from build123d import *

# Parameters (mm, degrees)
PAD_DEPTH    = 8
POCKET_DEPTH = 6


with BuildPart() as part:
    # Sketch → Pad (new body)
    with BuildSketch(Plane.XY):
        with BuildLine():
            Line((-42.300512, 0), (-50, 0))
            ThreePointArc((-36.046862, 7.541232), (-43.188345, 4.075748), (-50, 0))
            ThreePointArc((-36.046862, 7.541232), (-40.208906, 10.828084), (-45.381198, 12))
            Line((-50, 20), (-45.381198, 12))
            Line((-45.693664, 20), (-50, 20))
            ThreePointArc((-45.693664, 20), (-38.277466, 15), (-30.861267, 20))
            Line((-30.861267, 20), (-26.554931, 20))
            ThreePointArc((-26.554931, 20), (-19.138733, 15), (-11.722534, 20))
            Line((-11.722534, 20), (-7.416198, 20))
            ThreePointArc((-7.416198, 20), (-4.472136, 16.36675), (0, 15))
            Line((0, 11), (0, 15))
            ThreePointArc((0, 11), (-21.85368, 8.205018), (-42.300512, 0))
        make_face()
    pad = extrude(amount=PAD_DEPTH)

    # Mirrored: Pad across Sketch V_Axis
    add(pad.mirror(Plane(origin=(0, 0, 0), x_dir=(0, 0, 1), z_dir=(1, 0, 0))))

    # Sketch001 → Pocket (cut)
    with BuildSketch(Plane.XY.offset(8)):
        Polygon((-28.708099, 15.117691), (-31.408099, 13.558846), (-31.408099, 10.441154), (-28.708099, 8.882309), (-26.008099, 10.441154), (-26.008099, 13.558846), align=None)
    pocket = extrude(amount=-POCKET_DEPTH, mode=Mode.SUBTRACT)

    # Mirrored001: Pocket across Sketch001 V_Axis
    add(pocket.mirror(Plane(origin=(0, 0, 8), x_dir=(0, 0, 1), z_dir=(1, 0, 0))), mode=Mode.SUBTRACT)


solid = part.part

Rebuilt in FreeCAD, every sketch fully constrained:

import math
import FreeCAD as App
import Part
import Sketcher
Q = App.Units.Quantity


def add_polygon(sketch, points):
    """Adds a closed chain of lines whose ends are joined by coincident constraints."""
    first, n = sketch.GeometryCount, len(points)
    for a, b in zip(points, points[1:] + points[:1]):
        sketch.addGeometry(Part.LineSegment(App.Vector(*a, 0), App.Vector(*b, 0)), False)
    for i in range(n):
        sketch.addConstraint(Sketcher.Constraint("Coincident", first + i, 2, first + (i + 1) % n, 1))

doc = App.newDocument("Part")
body = doc.addObject("PartDesign::Body", "Body")

sketch1 = body.newObject("Sketcher::SketchObject", "Sketch")
sketch1.AttachmentSupport = (doc.getObject("XY_Plane"), [""])
sketch1.MapMode = "FlatFace"
sketch1.addGeometry([
    Part.LineSegment(App.Vector(-50, 0, 0), App.Vector(-42.3, 0, 0)),
    Part.ArcOfCircle(Part.Circle(App.Vector(0, -75.8, 0), App.Vector(0, 0, 1), 86.8), math.radians(90), math.radians(119)),
    Part.LineSegment(App.Vector(0, 11, 0), App.Vector(0, 15, 0)),
    Part.ArcOfCircle(Part.Circle(App.Vector(0, 23, 0), App.Vector(0, 0, 1), 8), math.radians(-158), math.radians(-90)),
    Part.LineSegment(App.Vector(-7.4, 20, 0), App.Vector(-11.7, 20, 0)),
    Part.ArcOfCircle(Part.Circle(App.Vector(-19.1, 23, 0), App.Vector(0, 0, 1), 8), math.radians(-158), math.radians(-22)),
    Part.LineSegment(App.Vector(-26.6, 20, 0), App.Vector(-30.9, 20, 0)),
    Part.ArcOfCircle(Part.Circle(App.Vector(-38.3, 23, 0), App.Vector(0, 0, 1), 8), math.radians(-158), math.radians(-22)),
    Part.LineSegment(App.Vector(-45.7, 20, 0), App.Vector(-50, 20, 0)),
    Part.LineSegment(App.Vector(-50, 20, 0), App.Vector(-45.4, 12, 0)),
    Part.ArcOfCircle(Part.Circle(App.Vector(-45.4, 0, 0), App.Vector(0, 0, 1), 12), math.radians(39), math.radians(90)),
    Part.ArcOfCircle(Part.Circle(App.Vector(0, -75.8, 0), App.Vector(0, 0, 1), 90.8), math.radians(113.38), math.radians(123.4)),
], False)
sketch1.addConstraint([
    Sketcher.Constraint("Coincident", 0, 2, 1, 2),
    Sketcher.Constraint("Coincident", 1, 1, 2, 1),
    Sketcher.Constraint("Coincident", 2, 2, 3, 2),
    Sketcher.Constraint("Coincident", 3, 1, 4, 1),
    Sketcher.Constraint("Coincident", 4, 2, 5, 2),
    Sketcher.Constraint("Coincident", 5, 1, 6, 1),
    Sketcher.Constraint("Coincident", 6, 2, 7, 2),
    Sketcher.Constraint("Coincident", 7, 1, 8, 1),
    Sketcher.Constraint("Coincident", 8, 2, 9, 1),
    Sketcher.Constraint("Coincident", 9, 2, 10, 2),
    Sketcher.Constraint("Coincident", 10, 1, 11, 1),
    Sketcher.Constraint("Coincident", 11, 2, 0, 1),
    Sketcher.Constraint("Horizontal", 0),
    Sketcher.Constraint("Vertical", 2),
    Sketcher.Constraint("Horizontal", 4),
    Sketcher.Constraint("Horizontal", 6),
    Sketcher.Constraint("Horizontal", 8),
    Sketcher.Constraint("Equal", 5, 7),
    Sketcher.Constraint("PointOnObject", 3, 3, -2),
    Sketcher.Constraint("PointOnObject", 10, 3, -1),
    Sketcher.Constraint("PointOnObject", 11, 3, -2),
    Sketcher.Constraint("PointOnObject", 0, 2, -1),
    Sketcher.Constraint("PointOnObject", 1, 1, -2),
    Sketcher.Constraint("Horizontal", 5, 3, 7, 3),
    Sketcher.Constraint("Horizontal", 4, 2, 5, 1),
    Sketcher.Constraint("Horizontal", 6, 2, 7, 1),
    Sketcher.Constraint("Vertical", 1, 3, 3, 3),
    Sketcher.Constraint("Vertical", 10, 3, 9, 2),
    Sketcher.Constraint("Vertical", 8, 2, 11, 2),
    Sketcher.Constraint("Equal", 4, 6),
    Sketcher.Constraint("Equal", 6, 8),
    Sketcher.Constraint("Radius", 5, Q("8 mm")),
    Sketcher.Constraint("Radius", 10, Q("11.999999 mm")),
    Sketcher.Constraint("DistanceY", 2, 1, 2, 2, Q("4 mm")),
    Sketcher.Constraint("Angle", 9, Q("-60.000001 deg")),
    Sketcher.Constraint("DistanceY", -1, 1, 5, 3, Q("23 mm")),
    Sketcher.Constraint("DistanceY", -1, 1, 1, 1, Q("11 mm")),
    Sketcher.Constraint("DistanceY", -1, 1, 3, 1, Q("20 mm")),
    Sketcher.Constraint("DistanceX", 8, 2, -1, 1, Q("50 mm")),
    Sketcher.Constraint("Radius", 1, Q("86.833324 mm")),
    Sketcher.Constraint("Radius", 3, Q("7.999997 mm")),
    Sketcher.Constraint("Radius", 11, Q("90.833335 mm")),
])
pad1 = body.newObject("PartDesign::Pad", "Pad")
pad1.Profile = sketch1
pad1.Length = 8
doc.recompute()

mirrored = body.newObject("PartDesign::Mirrored", "Mirrored")
mirrored.Originals = [pad1]
mirrored.MirrorPlane = (doc.getObject("YZ_Plane"), [""])
body.Tip = mirrored

sketch2 = body.newObject("Sketcher::SketchObject", "Sketch001")
sketch2.AttachmentSupport = (doc.getObject("XY_Plane"), [""])
sketch2.MapMode = "FlatFace"
sketch2.AttachmentOffset = App.Placement(App.Vector(0, 0, 8), App.Rotation())
add_polygon(sketch2, [(-28.7, 15.1), (-31.4, 13.6), (-31.4, 10.4), (-28.7, 8.9), (-26, 10.4), (-26, 13.6)])
sketch2.addConstraint([
    Sketcher.Constraint("Vertical", 1),
    Sketcher.Constraint("Vertical", 4),
    Sketcher.Constraint("Parallel", 0, 3),
    Sketcher.Constraint("Parallel", 2, 5),
    Sketcher.Constraint("Horizontal", 1, 2, 3, 2),
    Sketcher.Constraint("Horizontal", 0, 2, 4, 2),
    Sketcher.Constraint("Vertical", 2, 2, 5, 2),
    Sketcher.Constraint("Angle", 0, Q("-150.000012 deg")),
    Sketcher.Constraint("DistanceX", 1, 2, 2, 2, Q("2.7 mm")),
    Sketcher.Constraint("DistanceX", 0, 2, -1, 1, Q("31.408099 mm")),
    Sketcher.Constraint("DistanceY", 1, 2, 1, 1, Q("3.117692 mm")),
    Sketcher.Constraint("DistanceY", -1, 1, 2, 2, Q("8.882309 mm")),
])
pocket1 = body.newObject("PartDesign::Pocket", "Pocket")
pocket1.Profile = sketch2
pocket1.Length = 6
doc.recompute()

mirrored2 = body.newObject("PartDesign::Mirrored", "Mirrored001")
mirrored2.Originals = [pocket1]
mirrored2.MirrorPlane = (doc.getObject("YZ_Plane"), [""])
body.Tip = mirrored2

doc.recompute()
